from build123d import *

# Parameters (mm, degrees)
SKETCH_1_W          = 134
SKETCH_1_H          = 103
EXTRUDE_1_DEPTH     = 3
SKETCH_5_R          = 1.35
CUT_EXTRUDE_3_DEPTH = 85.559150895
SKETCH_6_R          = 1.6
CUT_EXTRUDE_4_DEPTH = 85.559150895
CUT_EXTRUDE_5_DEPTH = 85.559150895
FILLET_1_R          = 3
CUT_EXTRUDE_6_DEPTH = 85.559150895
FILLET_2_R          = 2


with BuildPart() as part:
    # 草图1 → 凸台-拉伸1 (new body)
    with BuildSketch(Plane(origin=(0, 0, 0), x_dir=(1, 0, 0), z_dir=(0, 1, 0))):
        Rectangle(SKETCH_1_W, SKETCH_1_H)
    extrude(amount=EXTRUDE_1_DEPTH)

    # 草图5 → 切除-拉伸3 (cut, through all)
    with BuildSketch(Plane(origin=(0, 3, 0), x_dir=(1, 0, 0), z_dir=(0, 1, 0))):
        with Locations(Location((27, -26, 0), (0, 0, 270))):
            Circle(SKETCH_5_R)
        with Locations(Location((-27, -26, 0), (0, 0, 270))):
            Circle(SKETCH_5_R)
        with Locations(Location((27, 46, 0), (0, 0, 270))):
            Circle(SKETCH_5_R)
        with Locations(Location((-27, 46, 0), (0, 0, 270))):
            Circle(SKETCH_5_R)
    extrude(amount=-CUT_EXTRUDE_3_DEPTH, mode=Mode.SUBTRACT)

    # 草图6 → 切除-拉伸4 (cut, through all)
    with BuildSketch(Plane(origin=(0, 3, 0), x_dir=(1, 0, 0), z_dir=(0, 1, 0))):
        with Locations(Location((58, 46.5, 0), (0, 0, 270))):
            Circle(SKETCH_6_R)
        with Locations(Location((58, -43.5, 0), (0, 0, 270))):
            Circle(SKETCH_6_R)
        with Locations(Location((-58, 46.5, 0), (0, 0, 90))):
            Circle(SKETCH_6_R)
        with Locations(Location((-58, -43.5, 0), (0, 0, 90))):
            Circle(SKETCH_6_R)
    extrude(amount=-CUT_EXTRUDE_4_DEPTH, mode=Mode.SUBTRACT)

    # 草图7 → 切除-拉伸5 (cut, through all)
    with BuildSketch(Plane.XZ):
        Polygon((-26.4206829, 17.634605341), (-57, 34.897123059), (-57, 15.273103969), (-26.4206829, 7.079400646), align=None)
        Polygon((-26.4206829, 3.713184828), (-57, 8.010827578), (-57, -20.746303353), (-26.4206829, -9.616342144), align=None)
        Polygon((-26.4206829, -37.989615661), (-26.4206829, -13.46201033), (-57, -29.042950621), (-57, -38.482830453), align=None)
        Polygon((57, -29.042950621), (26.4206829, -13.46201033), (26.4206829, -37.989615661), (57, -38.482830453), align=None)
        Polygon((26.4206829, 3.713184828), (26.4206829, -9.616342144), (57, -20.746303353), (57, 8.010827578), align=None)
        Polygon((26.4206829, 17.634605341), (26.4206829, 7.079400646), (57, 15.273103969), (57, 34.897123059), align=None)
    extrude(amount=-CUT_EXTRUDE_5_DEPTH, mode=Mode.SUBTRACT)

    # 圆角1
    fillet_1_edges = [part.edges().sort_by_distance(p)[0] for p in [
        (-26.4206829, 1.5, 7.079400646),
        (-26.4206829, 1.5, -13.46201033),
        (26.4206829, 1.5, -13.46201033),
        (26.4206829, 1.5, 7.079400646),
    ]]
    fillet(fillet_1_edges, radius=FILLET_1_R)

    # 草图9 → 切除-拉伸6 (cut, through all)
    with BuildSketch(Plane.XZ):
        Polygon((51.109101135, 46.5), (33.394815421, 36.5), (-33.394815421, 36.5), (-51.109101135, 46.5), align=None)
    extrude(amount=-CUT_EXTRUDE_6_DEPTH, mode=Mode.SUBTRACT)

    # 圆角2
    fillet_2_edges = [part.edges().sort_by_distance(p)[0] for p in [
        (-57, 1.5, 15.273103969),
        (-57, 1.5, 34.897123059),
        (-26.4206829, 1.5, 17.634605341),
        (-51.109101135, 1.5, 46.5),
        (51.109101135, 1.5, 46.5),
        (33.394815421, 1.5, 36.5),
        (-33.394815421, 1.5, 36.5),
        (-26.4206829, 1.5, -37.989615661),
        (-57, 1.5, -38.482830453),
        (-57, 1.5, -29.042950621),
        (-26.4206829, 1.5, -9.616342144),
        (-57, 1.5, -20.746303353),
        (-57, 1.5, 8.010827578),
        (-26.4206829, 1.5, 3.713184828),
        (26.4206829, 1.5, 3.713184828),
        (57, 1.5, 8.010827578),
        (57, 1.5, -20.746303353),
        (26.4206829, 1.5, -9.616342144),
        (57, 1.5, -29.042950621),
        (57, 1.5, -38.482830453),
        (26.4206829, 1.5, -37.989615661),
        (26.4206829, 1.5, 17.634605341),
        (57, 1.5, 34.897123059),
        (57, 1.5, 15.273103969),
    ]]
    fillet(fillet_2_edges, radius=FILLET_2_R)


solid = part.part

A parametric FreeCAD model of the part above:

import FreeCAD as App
import Part
import Sketcher
from FreeCAD import Vector
Q = App.Units.Quantity


def edges_at(feature, points):
    """Names of the edges that pass closest to the given points."""
    edges = feature.Shape.Edges
    near = lambda p: min(range(len(edges)), key=lambda i: edges[i].distToShape(Part.Vertex(*p))[0])
    return sorted({f"Edge{near(p) + 1}" for p in points})


def add_polygon(sketch, points):
    """Adds a closed chain of lines whose ends are joined by coincident constraints."""
    first, n = sketch.GeometryCount, len(points)
    for a, b in zip(points, points[1:] + points[:1]):
        sketch.addGeometry(Part.LineSegment(App.Vector(*a, 0), App.Vector(*b, 0)), False)
    for i in range(n):
        sketch.addConstraint(Sketcher.Constraint("Coincident", first + i, 2, first + (i + 1) % n, 1))

doc = App.newDocument("Part")
body = doc.addObject("PartDesign::Body", "Body")

sketch1 = body.newObject("Sketcher::SketchObject", "Sketch")
sketch1.AttachmentSupport = (doc.getObject("XZ_Plane"), [""])
sketch1.MapMode = "FlatFace"
add_polygon(sketch1, [(-67, -51.5), (-67, 51.5), (67, 51.5), (67, -51.5)])
sketch1.addConstraint([
    Sketcher.Constraint("Vertical", 0),
    Sketcher.Constraint("Horizontal", 1),
    Sketcher.Constraint("Vertical", 2),
    Sketcher.Constraint("Horizontal", 3),
    Sketcher.Constraint("Symmetric", 0, 2, 2, 2, -1, 1),
    Sketcher.Constraint("DistanceX", 1, 1, 1, 2, Q("134 mm")),
    Sketcher.Constraint("DistanceY", 0, 1, 0, 2, Q("103 mm")),
])
pad1 = body.newObject("PartDesign::Pad", "Pad")
pad1.Profile = sketch1
pad1.Length = 3
pad1.Reversed = True

sketch2 = body.newObject("Sketcher::SketchObject", "Sketch001")
sketch2.AttachmentSupport = (doc.getObject("XZ_Plane"), [""])
sketch2.MapMode = "FlatFace"
sketch2.AttachmentOffset = App.Placement(Vector(0, 0, -3), App.Rotation())
sketch2.addGeometry([
    Part.Circle(Vector(27, 26, 0), Vector(0, 0, 1), 1.35),
    Part.Circle(Vector(-27, 26, 0), Vector(0, 0, 1), 1.35),
    Part.Circle(Vector(27, -46, 0), Vector(0, 0, 1), 1.35),
    Part.Circle(Vector(-27, -46, 0), Vector(0, 0, 1), 1.35),
], False)
sketch2.addConstraint([
    Sketcher.Constraint("Equal", 0, 1),
    Sketcher.Constraint("Equal", 1, 2),
    Sketcher.Constraint("Equal", 2, 3),
    Sketcher.Constraint("Symmetric", 0, 3, 1, 3, -2),
    Sketcher.Constraint("Symmetric", 2, 3, 3, 3, -2),
    Sketcher.Constraint("Vertical", 0, 3, 2, 3),
    Sketcher.Constraint("Diameter", 0, Q("2.7 mm")),
    Sketcher.Constraint("DistanceX", -1, 1, 0, 3, Q("27 mm")),
    Sketcher.Constraint("DistanceY", -1, 1, 0, 3, Q("26 mm")),
    Sketcher.Constraint("DistanceY", 2, 3, -1, 1, Q("46 mm")),
])
pocket1 = body.newObject("PartDesign::Pocket", "Pocket")
pocket1.Profile = sketch2
pocket1.Type = "ThroughAll"
pocket1.Reversed = True

sketch3 = body.newObject("Sketcher::SketchObject", "Sketch002")
sketch3.AttachmentSupport = (doc.getObject("XZ_Plane"), [""])
sketch3.MapMode = "FlatFace"
sketch3.AttachmentOffset = App.Placement(Vector(0, 0, -3), App.Rotation())
sketch3.addGeometry([
    Part.Circle(Vector(58, -46.5, 0), Vector(0, 0, 1), 1.6),
    Part.Circle(Vector(58, 43.5, 0), Vector(0, 0, 1), 1.6),
    Part.Circle(Vector(-58, -46.5, 0), Vector(0, 0, 1), 1.6),
    Part.Circle(Vector(-58, 43.5, 0), Vector(0, 0, 1), 1.6),
], False)
sketch3.addConstraint([
    Sketcher.Constraint("Equal", 0, 1),
    Sketcher.Constraint("Equal", 1, 2),
    Sketcher.Constraint("Equal", 2, 3),
    Sketcher.Constraint("Symmetric", 0, 3, 2, 3, -2),
    Sketcher.Constraint("Symmetric", 1, 3, 3, 3, -2),
    Sketcher.Constraint("Vertical", 0, 3, 1, 3),
    Sketcher.Constraint("Diameter", 0, Q("3.2 mm")),
    Sketcher.Constraint("DistanceX", -1, 1, 0, 3, Q("58 mm")),
    Sketcher.Constraint("DistanceY", 0, 3, 1, 3, Q("90 mm")),
    Sketcher.Constraint("DistanceY", 0, 3, -1, 1, Q("46.5 mm")),
])
pocket2 = body.newObject("PartDesign::Pocket", "Pocket001")
pocket2.Profile = sketch3
pocket2.Type = "ThroughAll"
pocket2.Reversed = True

sketch4 = body.newObject("Sketcher::SketchObject", "Sketch003")
sketch4.AttachmentSupport = (doc.getObject("XZ_Plane"), [""])
sketch4.MapMode = "FlatFace"
add_polygon(sketch4, [(-26.420683, 17.634605), (-57, 34.897123), (-57, 15.273104), (-26.420683, 7.079401)])
add_polygon(sketch4, [(-26.420683, 3.713185), (-57, 8.010828), (-57, -20.746303), (-26.420683, -9.616342)])
add_polygon(sketch4, [(-26.420683, -37.989616), (-26.420683, -13.46201), (-57, -29.042951), (-57, -38.48283)])
add_polygon(sketch4, [(57, -29.042951), (26.420683, -13.46201), (26.420683, -37.989616), (57, -38.48283)])
add_polygon(sketch4, [(26.420683, 3.713185), (26.420683, -9.616342), (57, -20.746303), (57, 8.010828)])
add_polygon(sketch4, [(26.420683, 17.634605), (26.420683, 7.079401), (57, 15.273104), (57, 34.897123)])
sketch4.addConstraint([
    Sketcher.Constraint("Vertical", 1),
    Sketcher.Constraint("Vertical", 3),
    Sketcher.Constraint("Vertical", 5),
    Sketcher.Constraint("Vertical", 7),
    Sketcher.Constraint("Vertical", 8),
    Sketcher.Constraint("Vertical", 10),
    Sketcher.Constraint("Vertical", 13),
    Sketcher.Constraint("Vertical", 15),
    Sketcher.Constraint("Vertical", 16),
    Sketcher.Constraint("Vertical", 18),
    Sketcher.Constraint("Vertical", 20),
    Sketcher.Constraint("Vertical", 22),
    Sketcher.Constraint("Symmetric", 8, 2, 12, 2, -2),
    Sketcher.Constraint("Symmetric", 10, 2, 14, 2, -2),
    Sketcher.Constraint("Symmetric", 6, 2, 16, 2, -2),
    Sketcher.Constraint("Symmetric", 5, 2, 17, 2, -2),
    Sketcher.Constraint("Symmetric", 2, 2, 20, 2, -2),
    Sketcher.Constraint("Symmetric", 1, 2, 21, 2, -2),
    Sketcher.Constraint("Horizontal", 11, 2, 13, 2),
    Sketcher.Constraint("Horizontal", 9, 2, 15, 2),
    Sketcher.Constraint("Horizontal", 4, 2, 18, 2),
    Sketcher.Constraint("Horizontal", 7, 2, 19, 2),
    Sketcher.Constraint("Horizontal", 0, 2, 22, 2),
    Sketcher.Constraint("Horizontal", 3, 2, 23, 2),
    Sketcher.Constraint("Vertical", 1, 2, 4, 2),
    Sketcher.Constraint("Vertical", 3, 2, 6, 2),
    Sketcher.Constraint("Vertical", 7, 2, 8, 2),
    Sketcher.Constraint("Vertical", 5, 2, 9, 2),
    Sketcher.Constraint("Angle", 2, Q("-15 deg")),
    Sketcher.Constraint("Angle", 4, Q("172 deg")),
    Sketcher.Constraint("Angle", 6, Q("20 deg")),
    Sketcher.Constraint("Angle", 9, Q("-153 deg")),
    Sketcher.Constraint("DistanceX", 0, 2, -1, 1, Q("57 mm")),
    Sketcher.Constraint("DistanceY", 1, 2, 1, 1, Q("19.624019 mm")),
    Sketcher.Constraint("DistanceY", 5, 2, 5, 1, Q("28.757131 mm")),
    Sketcher.Constraint("DistanceY", 10, 2, 10, 1, Q("9.43988 mm")),
    Sketcher.Constraint("DistanceY", -1, 1, 2, 2, Q("7.079401 mm")),
    Sketcher.Constraint("DistanceY", 1, 2, 3, 2, Q("2.361501 mm")),
    Sketcher.Constraint("DistanceY", 13, 2, 7, 2, Q("41.7028 mm")),
    Sketcher.Constraint("Distance", 0, Q("35.115369 mm")),
    Sketcher.Constraint("DistanceY", 8, 1, 8, 2, Q("24.527605 mm")),
    Sketcher.Constraint("DistanceY", 8, 2, -1, 1, Q("13.46201 mm")),
])
pocket3 = body.newObject("PartDesign::Pocket", "Pocket002")
pocket3.Profile = sketch4
pocket3.Type = "ThroughAll"
doc.recompute()

fillet = body.newObject("PartDesign::Fillet", "Fillet")
fillet.Base = (pocket3, edges_at(pocket3, [
    (-26.421, 1.5, 7.079),
    (-26.421, 1.5, -13.462),
    (26.421, 1.5, -13.462),
    (26.421, 1.5, 7.079),
]))
fillet.Radius = 3

sketch5 = body.newObject("Sketcher::SketchObject", "Sketch004")
sketch5.AttachmentSupport = (doc.getObject("XZ_Plane"), [""])
sketch5.MapMode = "FlatFace"
add_polygon(sketch5, [(33.394815, 36.5), (51.109101, 46.5), (-51.109101, 46.5), (-33.394815, 36.5)])
sketch5.addConstraint([
    Sketcher.Constraint("Horizontal", 1),
    Sketcher.Constraint("Horizontal", 3),
    Sketcher.Constraint("Equal", 0, 2),
    Sketcher.Constraint("DistanceY", 2, 2, 1, 2, Q("10 mm")),
    Sketcher.Constraint("DistanceY", -1, 1, 0, 2, Q("46.5 mm")),
    Sketcher.Constraint("DistanceX", 3, 1, 3, 2, Q("66.789631 mm")),
    Sketcher.Constraint("DistanceX", -1, 1, 0, 2, Q("51.109101 mm")),
    Sketcher.Constraint("DistanceX", 1, 2, -1, 1, Q("51.109101 mm")),
])
pocket4 = body.newObject("PartDesign::Pocket", "Pocket003")
pocket4.Profile = sketch5
pocket4.Type = "ThroughAll"
doc.recompute()

fillet2 = body.newObject("PartDesign::Fillet", "Fillet001")
fillet2.Base = (pocket4, edges_at(pocket4, [
    (-57, 1.5, 15.273),
    (-57, 1.5, 34.897),
    (-26.421, 1.5, 17.635),
    (-51.109, 1.5, 46.5),
    (51.109, 1.5, 46.5),
    (33.395, 1.5, 36.5),
    (-33.395, 1.5, 36.5),
    (-26.421, 1.5, -37.99),
    (-57, 1.5, -38.483),
    (-57, 1.5, -29.043),
    (-26.421, 1.5, -9.616),
    (-57, 1.5, -20.746),
    (-57, 1.5, 8.011),
    (-26.421, 1.5, 3.713),
    (26.421, 1.5, 3.713),
    (57, 1.5, 8.011),
    (57, 1.5, -20.746),
    (26.421, 1.5, -9.616),
    (57, 1.5, -29.043),
    (57, 1.5, -38.483),
    (26.421, 1.5, -37.99),
    (26.421, 1.5, 17.635),
    (57, 1.5, 34.897),
    (57, 1.5, 15.273),
]))
fillet2.Radius = 2

doc.recompute()
